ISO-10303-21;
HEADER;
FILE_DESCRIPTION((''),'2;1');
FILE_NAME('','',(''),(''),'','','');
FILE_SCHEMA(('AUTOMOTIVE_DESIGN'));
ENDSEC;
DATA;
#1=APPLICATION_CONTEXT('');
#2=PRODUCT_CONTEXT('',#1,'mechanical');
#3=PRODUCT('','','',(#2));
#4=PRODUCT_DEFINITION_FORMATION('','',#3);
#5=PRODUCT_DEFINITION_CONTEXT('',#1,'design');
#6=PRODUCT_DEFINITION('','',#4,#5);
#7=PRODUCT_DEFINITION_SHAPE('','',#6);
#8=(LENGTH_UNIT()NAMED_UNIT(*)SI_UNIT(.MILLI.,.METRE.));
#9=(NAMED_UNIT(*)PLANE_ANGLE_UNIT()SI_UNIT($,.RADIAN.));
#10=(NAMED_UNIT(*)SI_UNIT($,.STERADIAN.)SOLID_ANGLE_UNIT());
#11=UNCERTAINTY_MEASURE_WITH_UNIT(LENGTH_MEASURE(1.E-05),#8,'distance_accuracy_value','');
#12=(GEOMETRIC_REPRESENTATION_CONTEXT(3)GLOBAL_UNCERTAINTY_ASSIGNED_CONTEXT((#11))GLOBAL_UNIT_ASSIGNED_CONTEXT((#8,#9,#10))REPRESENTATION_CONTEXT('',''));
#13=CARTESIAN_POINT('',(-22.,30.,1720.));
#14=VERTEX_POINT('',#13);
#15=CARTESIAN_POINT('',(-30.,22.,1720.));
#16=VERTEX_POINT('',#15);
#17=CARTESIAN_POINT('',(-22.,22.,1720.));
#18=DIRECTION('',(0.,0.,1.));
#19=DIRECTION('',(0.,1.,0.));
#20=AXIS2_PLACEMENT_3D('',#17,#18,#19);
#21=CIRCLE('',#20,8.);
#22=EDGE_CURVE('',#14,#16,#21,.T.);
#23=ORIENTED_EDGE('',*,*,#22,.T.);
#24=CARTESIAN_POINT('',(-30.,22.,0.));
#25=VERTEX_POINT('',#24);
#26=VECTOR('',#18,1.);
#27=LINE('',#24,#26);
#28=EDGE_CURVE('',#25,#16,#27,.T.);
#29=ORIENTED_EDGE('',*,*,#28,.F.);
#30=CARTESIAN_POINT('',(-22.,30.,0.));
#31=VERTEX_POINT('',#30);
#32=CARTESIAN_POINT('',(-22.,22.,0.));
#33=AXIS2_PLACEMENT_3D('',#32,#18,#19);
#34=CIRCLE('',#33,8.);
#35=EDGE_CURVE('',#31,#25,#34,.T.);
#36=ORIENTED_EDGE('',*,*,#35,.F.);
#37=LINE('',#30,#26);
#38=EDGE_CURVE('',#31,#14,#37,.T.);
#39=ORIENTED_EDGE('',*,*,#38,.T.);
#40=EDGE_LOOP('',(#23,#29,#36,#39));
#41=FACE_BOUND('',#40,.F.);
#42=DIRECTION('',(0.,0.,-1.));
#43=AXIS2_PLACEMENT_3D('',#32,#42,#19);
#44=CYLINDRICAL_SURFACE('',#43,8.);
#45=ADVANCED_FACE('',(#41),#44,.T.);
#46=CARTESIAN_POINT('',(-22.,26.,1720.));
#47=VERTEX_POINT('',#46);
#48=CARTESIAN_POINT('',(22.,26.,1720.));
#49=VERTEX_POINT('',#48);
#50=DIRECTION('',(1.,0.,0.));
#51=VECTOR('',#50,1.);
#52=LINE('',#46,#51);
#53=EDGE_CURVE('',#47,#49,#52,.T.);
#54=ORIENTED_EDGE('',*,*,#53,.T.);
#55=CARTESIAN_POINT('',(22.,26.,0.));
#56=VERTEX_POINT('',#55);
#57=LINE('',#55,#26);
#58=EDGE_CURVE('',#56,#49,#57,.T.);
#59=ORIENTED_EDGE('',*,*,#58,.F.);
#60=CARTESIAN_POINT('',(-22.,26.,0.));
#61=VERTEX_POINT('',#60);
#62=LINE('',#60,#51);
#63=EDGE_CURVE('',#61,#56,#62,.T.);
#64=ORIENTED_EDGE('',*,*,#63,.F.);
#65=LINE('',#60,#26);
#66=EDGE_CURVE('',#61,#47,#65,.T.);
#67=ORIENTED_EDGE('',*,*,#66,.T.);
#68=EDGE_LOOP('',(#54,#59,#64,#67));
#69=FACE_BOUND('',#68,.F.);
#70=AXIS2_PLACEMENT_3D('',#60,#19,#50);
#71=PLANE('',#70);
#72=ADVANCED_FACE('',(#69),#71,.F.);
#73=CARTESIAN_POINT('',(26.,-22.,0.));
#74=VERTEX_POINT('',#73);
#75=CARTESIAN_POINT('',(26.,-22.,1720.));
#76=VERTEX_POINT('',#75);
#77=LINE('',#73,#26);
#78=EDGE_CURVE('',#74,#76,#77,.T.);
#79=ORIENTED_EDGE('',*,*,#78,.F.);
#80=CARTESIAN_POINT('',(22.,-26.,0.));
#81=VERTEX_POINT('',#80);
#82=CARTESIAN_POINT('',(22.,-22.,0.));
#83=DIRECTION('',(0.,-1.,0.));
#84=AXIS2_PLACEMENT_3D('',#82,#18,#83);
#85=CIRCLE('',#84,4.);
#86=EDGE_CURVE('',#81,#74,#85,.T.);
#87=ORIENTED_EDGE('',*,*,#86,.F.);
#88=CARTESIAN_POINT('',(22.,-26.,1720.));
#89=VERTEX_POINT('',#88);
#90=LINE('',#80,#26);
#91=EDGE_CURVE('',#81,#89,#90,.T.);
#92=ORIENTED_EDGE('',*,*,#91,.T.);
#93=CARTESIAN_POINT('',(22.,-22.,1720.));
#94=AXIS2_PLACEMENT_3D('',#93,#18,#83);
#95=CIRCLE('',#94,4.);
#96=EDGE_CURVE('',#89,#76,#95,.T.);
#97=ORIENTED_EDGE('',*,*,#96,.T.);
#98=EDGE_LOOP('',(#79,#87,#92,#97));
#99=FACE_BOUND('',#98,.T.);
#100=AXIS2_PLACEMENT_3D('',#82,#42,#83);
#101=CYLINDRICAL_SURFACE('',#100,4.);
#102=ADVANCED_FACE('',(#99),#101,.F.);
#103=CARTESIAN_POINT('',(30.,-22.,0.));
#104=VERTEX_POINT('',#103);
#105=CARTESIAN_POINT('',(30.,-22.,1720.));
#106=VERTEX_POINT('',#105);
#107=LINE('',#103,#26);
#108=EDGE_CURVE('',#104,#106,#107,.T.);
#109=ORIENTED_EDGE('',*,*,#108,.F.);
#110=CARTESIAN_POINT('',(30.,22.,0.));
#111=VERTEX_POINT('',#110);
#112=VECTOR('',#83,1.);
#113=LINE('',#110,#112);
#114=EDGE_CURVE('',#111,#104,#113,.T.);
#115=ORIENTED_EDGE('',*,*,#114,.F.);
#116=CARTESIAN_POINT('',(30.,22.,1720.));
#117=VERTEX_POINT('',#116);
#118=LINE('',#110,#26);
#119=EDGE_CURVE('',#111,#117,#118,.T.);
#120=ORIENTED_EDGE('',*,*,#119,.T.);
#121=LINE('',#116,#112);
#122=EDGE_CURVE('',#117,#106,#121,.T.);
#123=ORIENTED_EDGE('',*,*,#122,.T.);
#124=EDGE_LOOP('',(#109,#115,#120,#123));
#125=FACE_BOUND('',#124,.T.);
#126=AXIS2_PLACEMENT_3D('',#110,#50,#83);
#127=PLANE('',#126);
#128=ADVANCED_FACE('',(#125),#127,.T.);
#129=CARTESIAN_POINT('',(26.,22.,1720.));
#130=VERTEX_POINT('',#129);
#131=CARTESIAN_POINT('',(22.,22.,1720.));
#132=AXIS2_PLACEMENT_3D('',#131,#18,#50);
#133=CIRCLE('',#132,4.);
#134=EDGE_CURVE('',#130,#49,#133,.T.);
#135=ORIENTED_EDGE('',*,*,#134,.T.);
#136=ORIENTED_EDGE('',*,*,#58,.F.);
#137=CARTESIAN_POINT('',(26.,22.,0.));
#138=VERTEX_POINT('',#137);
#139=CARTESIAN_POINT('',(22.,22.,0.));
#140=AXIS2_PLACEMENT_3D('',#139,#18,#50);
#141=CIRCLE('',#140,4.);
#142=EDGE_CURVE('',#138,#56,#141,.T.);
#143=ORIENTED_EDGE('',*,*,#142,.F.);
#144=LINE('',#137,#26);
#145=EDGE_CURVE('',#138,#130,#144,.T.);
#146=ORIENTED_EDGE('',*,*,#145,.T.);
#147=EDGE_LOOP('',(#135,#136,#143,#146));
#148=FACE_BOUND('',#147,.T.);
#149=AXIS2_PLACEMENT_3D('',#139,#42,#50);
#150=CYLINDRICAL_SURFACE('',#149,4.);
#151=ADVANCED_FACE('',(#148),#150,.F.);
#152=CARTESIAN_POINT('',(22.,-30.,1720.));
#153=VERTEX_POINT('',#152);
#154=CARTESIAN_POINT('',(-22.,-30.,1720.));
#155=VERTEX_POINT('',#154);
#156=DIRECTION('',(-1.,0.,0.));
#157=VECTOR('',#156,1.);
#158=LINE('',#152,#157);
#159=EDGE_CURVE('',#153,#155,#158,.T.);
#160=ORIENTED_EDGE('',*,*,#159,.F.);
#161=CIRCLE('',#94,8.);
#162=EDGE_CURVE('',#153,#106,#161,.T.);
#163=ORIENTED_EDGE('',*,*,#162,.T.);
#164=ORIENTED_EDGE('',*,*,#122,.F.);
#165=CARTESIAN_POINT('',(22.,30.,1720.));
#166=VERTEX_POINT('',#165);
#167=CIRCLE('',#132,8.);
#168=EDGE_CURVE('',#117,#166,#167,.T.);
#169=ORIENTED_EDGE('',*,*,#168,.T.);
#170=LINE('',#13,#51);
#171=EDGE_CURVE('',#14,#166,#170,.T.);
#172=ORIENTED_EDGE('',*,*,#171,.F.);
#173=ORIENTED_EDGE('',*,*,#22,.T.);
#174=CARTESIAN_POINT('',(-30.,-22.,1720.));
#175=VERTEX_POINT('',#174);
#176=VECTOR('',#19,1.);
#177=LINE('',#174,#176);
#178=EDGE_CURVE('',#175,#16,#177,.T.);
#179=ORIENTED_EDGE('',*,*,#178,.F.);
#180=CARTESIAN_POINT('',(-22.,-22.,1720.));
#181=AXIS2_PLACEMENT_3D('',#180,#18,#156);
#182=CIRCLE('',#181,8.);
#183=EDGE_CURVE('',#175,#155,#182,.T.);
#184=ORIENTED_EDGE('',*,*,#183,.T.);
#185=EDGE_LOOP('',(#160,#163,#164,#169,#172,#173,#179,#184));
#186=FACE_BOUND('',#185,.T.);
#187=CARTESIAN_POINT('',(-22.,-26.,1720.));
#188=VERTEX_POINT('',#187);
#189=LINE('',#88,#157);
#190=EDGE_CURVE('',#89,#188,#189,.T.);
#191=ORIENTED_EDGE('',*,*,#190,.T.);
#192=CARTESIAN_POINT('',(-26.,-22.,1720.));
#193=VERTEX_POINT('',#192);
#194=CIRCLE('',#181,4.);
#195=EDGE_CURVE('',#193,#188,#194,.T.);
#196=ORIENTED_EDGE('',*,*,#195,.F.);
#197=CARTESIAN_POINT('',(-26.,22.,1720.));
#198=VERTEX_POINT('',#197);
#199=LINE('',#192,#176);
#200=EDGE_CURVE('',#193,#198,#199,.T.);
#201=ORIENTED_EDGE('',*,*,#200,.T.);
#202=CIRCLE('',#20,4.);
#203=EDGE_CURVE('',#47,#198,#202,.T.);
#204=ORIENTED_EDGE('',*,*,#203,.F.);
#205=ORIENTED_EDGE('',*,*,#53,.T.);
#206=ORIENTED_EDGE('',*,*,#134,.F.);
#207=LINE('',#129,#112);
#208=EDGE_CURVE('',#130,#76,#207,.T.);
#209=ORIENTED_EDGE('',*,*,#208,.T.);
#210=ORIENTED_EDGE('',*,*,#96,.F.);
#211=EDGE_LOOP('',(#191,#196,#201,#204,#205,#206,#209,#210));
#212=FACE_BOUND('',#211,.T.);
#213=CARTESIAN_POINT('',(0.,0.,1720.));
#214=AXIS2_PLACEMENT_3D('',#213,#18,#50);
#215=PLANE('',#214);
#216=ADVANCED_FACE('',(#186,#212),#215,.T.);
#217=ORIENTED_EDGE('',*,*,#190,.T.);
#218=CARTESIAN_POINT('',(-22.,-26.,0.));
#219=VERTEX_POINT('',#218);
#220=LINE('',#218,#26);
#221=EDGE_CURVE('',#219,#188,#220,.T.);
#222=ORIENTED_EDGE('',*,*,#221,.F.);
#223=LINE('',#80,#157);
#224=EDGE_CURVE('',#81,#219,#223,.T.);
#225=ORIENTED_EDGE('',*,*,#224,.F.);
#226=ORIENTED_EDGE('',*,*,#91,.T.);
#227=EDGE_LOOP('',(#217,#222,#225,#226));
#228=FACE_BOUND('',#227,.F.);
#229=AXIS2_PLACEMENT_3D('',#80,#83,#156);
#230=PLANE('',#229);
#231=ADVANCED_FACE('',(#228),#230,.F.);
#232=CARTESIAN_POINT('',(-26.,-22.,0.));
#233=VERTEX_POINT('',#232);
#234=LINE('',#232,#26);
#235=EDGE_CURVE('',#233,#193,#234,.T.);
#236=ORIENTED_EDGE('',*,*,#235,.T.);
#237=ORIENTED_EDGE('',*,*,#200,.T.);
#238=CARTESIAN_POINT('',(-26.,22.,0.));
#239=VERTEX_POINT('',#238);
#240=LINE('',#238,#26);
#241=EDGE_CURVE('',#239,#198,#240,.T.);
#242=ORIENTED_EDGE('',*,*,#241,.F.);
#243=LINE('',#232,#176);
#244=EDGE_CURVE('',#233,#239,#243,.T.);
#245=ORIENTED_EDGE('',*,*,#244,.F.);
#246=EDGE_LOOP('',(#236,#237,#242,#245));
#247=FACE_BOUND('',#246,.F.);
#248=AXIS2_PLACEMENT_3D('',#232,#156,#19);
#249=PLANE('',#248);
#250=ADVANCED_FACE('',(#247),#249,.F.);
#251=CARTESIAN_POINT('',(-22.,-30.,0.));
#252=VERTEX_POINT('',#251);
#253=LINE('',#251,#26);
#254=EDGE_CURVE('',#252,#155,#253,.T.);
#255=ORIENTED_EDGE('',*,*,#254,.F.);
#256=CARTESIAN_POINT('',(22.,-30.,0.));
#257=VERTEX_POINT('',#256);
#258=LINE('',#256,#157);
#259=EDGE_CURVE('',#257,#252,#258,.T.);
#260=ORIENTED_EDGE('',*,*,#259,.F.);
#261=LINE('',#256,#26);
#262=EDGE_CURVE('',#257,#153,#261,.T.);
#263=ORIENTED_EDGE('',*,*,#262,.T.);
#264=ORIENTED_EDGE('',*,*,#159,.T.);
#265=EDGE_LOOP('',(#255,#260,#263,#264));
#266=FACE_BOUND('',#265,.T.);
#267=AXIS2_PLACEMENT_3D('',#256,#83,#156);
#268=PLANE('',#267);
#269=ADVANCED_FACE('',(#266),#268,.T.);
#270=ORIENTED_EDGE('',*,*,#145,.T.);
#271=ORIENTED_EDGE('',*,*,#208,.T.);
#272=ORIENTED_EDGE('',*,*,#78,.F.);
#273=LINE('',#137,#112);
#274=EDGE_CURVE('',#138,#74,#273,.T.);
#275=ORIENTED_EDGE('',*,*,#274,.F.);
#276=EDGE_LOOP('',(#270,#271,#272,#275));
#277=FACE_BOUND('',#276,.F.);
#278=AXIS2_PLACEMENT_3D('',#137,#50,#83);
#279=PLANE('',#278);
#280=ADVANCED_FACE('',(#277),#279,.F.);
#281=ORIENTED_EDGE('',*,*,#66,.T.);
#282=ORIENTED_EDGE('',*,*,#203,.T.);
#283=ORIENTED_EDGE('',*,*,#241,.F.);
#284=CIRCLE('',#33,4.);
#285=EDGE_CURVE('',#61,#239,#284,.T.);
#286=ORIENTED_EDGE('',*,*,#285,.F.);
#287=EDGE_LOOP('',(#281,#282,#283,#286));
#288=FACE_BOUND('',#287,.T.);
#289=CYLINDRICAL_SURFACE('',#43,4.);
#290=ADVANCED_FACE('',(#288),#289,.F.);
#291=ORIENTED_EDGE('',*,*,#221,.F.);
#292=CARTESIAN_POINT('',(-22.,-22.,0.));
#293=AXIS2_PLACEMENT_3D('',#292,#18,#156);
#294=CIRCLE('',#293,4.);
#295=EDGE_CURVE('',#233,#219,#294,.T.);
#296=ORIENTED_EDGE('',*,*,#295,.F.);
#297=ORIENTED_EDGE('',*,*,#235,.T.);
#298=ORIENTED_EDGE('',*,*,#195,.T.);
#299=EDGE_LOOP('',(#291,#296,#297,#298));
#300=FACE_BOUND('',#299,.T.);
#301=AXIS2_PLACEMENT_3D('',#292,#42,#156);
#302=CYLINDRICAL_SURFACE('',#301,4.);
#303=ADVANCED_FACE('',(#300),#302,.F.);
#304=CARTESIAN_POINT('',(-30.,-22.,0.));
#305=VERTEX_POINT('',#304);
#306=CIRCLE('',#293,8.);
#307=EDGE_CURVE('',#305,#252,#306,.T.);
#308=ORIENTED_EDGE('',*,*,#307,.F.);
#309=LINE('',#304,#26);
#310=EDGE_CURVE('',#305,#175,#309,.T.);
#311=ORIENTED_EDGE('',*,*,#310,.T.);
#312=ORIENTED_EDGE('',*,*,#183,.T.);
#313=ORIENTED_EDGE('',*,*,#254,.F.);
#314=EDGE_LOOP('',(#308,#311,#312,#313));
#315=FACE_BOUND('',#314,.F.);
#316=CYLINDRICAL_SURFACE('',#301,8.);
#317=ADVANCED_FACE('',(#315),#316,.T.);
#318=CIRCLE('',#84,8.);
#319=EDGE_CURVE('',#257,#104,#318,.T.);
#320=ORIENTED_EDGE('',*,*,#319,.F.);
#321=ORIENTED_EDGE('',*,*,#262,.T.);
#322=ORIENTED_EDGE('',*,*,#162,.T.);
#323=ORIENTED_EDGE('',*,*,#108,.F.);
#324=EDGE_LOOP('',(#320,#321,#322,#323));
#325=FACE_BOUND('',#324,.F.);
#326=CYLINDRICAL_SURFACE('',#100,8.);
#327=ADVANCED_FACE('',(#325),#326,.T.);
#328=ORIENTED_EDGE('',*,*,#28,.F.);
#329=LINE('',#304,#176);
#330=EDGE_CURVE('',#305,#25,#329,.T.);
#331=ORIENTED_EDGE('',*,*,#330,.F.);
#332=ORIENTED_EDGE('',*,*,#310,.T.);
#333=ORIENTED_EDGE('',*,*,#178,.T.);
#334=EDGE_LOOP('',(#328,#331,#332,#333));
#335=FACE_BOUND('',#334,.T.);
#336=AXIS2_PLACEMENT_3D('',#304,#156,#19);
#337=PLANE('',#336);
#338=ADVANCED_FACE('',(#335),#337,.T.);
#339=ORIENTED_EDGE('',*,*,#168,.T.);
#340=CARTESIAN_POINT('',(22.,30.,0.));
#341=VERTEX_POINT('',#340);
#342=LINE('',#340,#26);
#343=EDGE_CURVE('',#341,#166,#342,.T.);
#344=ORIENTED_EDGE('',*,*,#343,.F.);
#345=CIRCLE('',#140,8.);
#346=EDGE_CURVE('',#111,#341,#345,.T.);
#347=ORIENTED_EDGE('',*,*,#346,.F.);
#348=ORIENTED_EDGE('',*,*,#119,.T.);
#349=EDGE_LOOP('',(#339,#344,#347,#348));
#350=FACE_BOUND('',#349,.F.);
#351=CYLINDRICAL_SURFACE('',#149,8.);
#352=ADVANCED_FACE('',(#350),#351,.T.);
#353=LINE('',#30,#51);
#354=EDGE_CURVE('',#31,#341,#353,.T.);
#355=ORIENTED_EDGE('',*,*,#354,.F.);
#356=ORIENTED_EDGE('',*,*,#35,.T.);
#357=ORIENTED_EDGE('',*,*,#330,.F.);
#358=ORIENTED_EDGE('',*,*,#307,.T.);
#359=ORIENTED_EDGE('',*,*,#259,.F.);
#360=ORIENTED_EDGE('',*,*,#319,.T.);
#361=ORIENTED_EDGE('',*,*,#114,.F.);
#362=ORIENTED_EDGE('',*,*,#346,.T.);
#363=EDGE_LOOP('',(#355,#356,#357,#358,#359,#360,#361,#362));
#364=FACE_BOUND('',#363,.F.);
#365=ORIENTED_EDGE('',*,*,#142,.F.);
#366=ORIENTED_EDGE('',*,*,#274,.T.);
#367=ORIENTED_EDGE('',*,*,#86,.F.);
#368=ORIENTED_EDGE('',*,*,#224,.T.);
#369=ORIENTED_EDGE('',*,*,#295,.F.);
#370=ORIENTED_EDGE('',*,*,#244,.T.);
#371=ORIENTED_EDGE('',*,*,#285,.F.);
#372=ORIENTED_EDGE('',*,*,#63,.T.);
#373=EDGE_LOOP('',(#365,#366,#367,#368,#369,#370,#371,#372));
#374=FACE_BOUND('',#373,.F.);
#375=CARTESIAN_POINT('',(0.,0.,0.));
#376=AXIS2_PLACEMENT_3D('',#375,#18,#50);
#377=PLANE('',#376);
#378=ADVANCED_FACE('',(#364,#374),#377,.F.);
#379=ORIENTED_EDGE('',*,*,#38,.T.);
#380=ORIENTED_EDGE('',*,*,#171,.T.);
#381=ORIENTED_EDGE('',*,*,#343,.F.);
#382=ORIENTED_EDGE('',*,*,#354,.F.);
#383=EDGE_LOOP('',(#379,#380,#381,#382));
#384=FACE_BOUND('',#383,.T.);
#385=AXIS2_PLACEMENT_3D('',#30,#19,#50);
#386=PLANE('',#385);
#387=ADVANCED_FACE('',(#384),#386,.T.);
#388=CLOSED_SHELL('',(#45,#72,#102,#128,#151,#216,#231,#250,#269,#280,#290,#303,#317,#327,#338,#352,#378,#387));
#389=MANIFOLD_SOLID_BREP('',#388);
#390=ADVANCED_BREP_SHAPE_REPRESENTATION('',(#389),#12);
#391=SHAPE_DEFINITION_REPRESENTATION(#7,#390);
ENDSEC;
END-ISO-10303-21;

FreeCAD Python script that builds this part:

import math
import FreeCAD as App
import Part
import Sketcher
from FreeCAD import Vector

doc = App.newDocument("Part")
params = doc.addObject("Spreadsheet::Sheet", "Params")
for row, (alias, value) in enumerate([
    ("sketch1_radius", "8 mm"),
    ("sketch1_radius2", "4 mm"),
    ("pad1_length", "1720 mm"),
], start=1):
    params.set(f"A{row}", alias)
    params.set(f"B{row}", "=" + value)
    params.setAlias(f"B{row}", alias)

body = doc.addObject("PartDesign::Body", "Body")

sketch1 = body.newObject("Sketcher::SketchObject", "Sketch")
sketch1.AttachmentSupport = (doc.getObject("XY_Plane"), [""])
sketch1.MapMode = "FlatFace"
sketch1.addGeometry([
    Part.LineSegment(Vector(-30, 22, 0), Vector(-30, -22, 0)),
    Part.ArcOfCircle(Part.Circle(Vector(-22, -22, 0), Vector(0, 0, 1), 8), math.radians(180), math.radians(270)),
    Part.LineSegment(Vector(-22, -30, 0), Vector(22, -30, 0)),
    Part.ArcOfCircle(Part.Circle(Vector(22, -22, 0), Vector(0, 0, 1), 8), math.radians(-90), math.radians(0)),
    Part.LineSegment(Vector(30, -22, 0), Vector(30, 22, 0)),
    Part.ArcOfCircle(Part.Circle(Vector(22, 22, 0), Vector(0, 0, 1), 8), math.radians(0), math.radians(90)),
    Part.LineSegment(Vector(22, 30, 0), Vector(-22, 30, 0)),
    Part.ArcOfCircle(Part.Circle(Vector(-22, 22, 0), Vector(0, 0, 1), 8), math.radians(90), math.radians(180)),
    Part.ArcOfCircle(Part.Circle(Vector(-22, 22, 0), Vector(0, 0, 1), 4), math.radians(90), math.radians(180)),
    Part.LineSegment(Vector(-22, 26, 0), Vector(22, 26, 0)),
    Part.ArcOfCircle(Part.Circle(Vector(22, 22, 0), Vector(0, 0, 1), 4), math.radians(0), math.radians(90)),
    Part.LineSegment(Vector(26, 22, 0), Vector(26, -22, 0)),
    Part.ArcOfCircle(Part.Circle(Vector(22, -22, 0), Vector(0, 0, 1), 4), math.radians(-90), math.radians(0)),
    Part.LineSegment(Vector(22, -26, 0), Vector(-22, -26, 0)),
    Part.ArcOfCircle(Part.Circle(Vector(-22, -22, 0), Vector(0, 0, 1), 4), math.radians(180), math.radians(270)),
    Part.LineSegment(Vector(-26, -22, 0), Vector(-26, 22, 0)),
], False)
sketch1.addConstraint([
    Sketcher.Constraint("Tangent", 0, 2, 1, 1),
    Sketcher.Constraint("Tangent", 1, 2, 2, 1),
    Sketcher.Constraint("Tangent", 2, 2, 3, 1),
    Sketcher.Constraint("Tangent", 3, 2, 4, 1),
    Sketcher.Constraint("Tangent", 4, 2, 5, 1),
    Sketcher.Constraint("Tangent", 5, 2, 6, 1),
    Sketcher.Constraint("Tangent", 6, 2, 7, 1),
    Sketcher.Constraint("Tangent", 7, 2, 0, 1),
    Sketcher.Constraint("Tangent", 8, 1, 9, 1),
    Sketcher.Constraint("Tangent", 9, 2, 10, 2),
    Sketcher.Constraint("Tangent", 10, 1, 11, 1),
    Sketcher.Constraint("Tangent", 11, 2, 12, 2),
    Sketcher.Constraint("Tangent", 12, 1, 13, 1),
    Sketcher.Constraint("Tangent", 13, 2, 14, 2),
    Sketcher.Constraint("Tangent", 14, 1, 15, 1),
    Sketcher.Constraint("Tangent", 15, 2, 8, 2),
    Sketcher.Constraint("Vertical", 0),
    Sketcher.Constraint("Horizontal", 2),
    Sketcher.Constraint("Vertical", 4),
    Sketcher.Constraint("Horizontal", 6),
    Sketcher.Constraint("Horizontal", 9),
    Sketcher.Constraint("Vertical", 11),
    Sketcher.Constraint("Horizontal", 13),
    Sketcher.Constraint("Vertical", 15),
    Sketcher.Constraint("Coincident", 8, 3, 7, 3),
    Sketcher.Constraint("Coincident", 10, 3, 5, 3),
    Sketcher.Constraint("Coincident", 12, 3, 3, 3),
    Sketcher.Constraint("Equal", 1, 3),
    Sketcher.Constraint("Equal", 3, 5),
    Sketcher.Constraint("Equal", 5, 7),
    Sketcher.Constraint("Equal", 12, 14),
    Sketcher.Constraint("Symmetric", 1, 3, 5, 3, -1, 1),
    Sketcher.Constraint("Equal", 13, 0),
    Sketcher.Constraint("Radius", 1, 8.0),
    Sketcher.Constraint("Radius", 8, 4.0),
    Sketcher.Constraint("DistanceX", 0, 2, -1, 1, 30.0),
])
sketch1.setExpression("Constraints[33]", "Params.sketch1_radius")
sketch1.setExpression("Constraints[34]", "Params.sketch1_radius2")
pad1 = body.newObject("PartDesign::Pad", "Pad")
pad1.Profile = sketch1
pad1.setExpression("Length", "Params.pad1_length")

doc.recompute()
